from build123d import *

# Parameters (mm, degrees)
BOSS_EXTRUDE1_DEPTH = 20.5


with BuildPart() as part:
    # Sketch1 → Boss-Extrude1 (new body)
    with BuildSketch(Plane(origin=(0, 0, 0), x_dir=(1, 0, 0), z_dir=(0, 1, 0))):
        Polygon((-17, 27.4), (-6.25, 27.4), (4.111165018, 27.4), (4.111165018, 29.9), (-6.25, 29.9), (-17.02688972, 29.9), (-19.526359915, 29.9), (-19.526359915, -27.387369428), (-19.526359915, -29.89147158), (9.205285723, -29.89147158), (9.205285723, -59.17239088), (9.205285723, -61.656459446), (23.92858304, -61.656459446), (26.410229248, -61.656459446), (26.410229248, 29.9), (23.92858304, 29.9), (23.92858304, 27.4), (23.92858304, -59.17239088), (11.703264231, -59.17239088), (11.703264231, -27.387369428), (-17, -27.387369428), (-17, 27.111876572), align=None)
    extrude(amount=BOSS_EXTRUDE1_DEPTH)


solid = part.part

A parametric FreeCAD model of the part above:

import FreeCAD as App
import Part
import Sketcher
from FreeCAD import Vector

doc = App.newDocument("Part")
params = doc.addObject("Spreadsheet::Sheet", "Params")
for row, (alias, value) in enumerate([
    ("sketch1_height", "2.5 mm"),
    ("pad1_length", "20.5 mm"),
], start=1):
    params.set(f"A{row}", alias)
    params.set(f"B{row}", "=" + value)
    params.setAlias(f"B{row}", alias)

body = doc.addObject("PartDesign::Body", "Body")

# Sketch on XZ plane
sketch1 = doc.addObject("Sketcher::SketchObject", "Sketch")
body.addObject(sketch1)
sketch1.AttachmentSupport = (doc.XZ_Plane, [""])
sketch1.MapMode = "FlatFace"
sketch1.addGeometry(Part.LineSegment(Vector(-17, -27.4, 0), Vector(4.111165, -27.4, 0)), False)
sketch1.addGeometry(Part.LineSegment(Vector(4.111165, -27.4, 0), Vector(4.111165, -29.9, 0)), False)
sketch1.addGeometry(Part.LineSegment(Vector(4.111165, -29.9, 0), Vector(-19.52636, -29.9, 0)), False)
sketch1.addGeometry(Part.LineSegment(Vector(-19.52636, -29.9, 0), Vector(-19.52636, 29.891472, 0)), False)
sketch1.addGeometry(Part.LineSegment(Vector(-19.52636, 29.891472, 0), Vector(9.205286, 29.891472, 0)), False)
sketch1.addGeometry(Part.LineSegment(Vector(9.205286, 29.891472, 0), Vector(9.205286, 61.656459, 0)), False)
sketch1.addGeometry(Part.LineSegment(Vector(9.205286, 61.656459, 0), Vector(26.410229, 61.656459, 0)), False)
sketch1.addGeometry(Part.LineSegment(Vector(26.410229, 61.656459, 0), Vector(26.410229, -29.9, 0)), False)
sketch1.addGeometry(Part.LineSegment(Vector(26.410229, -29.9, 0), Vector(23.928583, -29.9, 0)), False)
sketch1.addGeometry(Part.LineSegment(Vector(23.928583, -29.9, 0), Vector(23.928583, 59.172391, 0)), False)
sketch1.addGeometry(Part.LineSegment(Vector(23.928583, 59.172391, 0), Vector(11.703264, 59.172391, 0)), False)
sketch1.addGeometry(Part.LineSegment(Vector(11.703264, 59.172391, 0), Vector(11.703264, 27.387369, 0)), False)
sketch1.addGeometry(Part.LineSegment(Vector(11.703264, 27.387369, 0), Vector(-17, 27.387369, 0)), False)
sketch1.addGeometry(Part.LineSegment(Vector(-17, 27.387369, 0), Vector(-17, -27.4, 0)), False)
sketch1.addConstraint(Sketcher.Constraint("Coincident", 0, 2, 1, 1))
sketch1.addConstraint(Sketcher.Constraint("Coincident", 1, 2, 2, 1))
sketch1.addConstraint(Sketcher.Constraint("Coincident", 2, 2, 3, 1))
sketch1.addConstraint(Sketcher.Constraint("Coincident", 3, 2, 4, 1))
sketch1.addConstraint(Sketcher.Constraint("Coincident", 4, 2, 5, 1))
sketch1.addConstraint(Sketcher.Constraint("Coincident", 5, 2, 6, 1))
sketch1.addConstraint(Sketcher.Constraint("Coincident", 6, 2, 7, 1))
sketch1.addConstraint(Sketcher.Constraint("Coincident", 7, 2, 8, 1))
sketch1.addConstraint(Sketcher.Constraint("Coincident", 8, 2, 9, 1))
sketch1.addConstraint(Sketcher.Constraint("Coincident", 9, 2, 10, 1))
sketch1.addConstraint(Sketcher.Constraint("Coincident", 10, 2, 11, 1))
sketch1.addConstraint(Sketcher.Constraint("Coincident", 11, 2, 12, 1))
sketch1.addConstraint(Sketcher.Constraint("Coincident", 12, 2, 13, 1))
sketch1.addConstraint(Sketcher.Constraint("Coincident", 13, 2, 0, 1))
sketch1.addConstraint(Sketcher.Constraint("Horizontal", 0))
sketch1.addConstraint(Sketcher.Constraint("Vertical", 1))
sketch1.addConstraint(Sketcher.Constraint("Horizontal", 2))
sketch1.addConstraint(Sketcher.Constraint("Vertical", 3))
sketch1.addConstraint(Sketcher.Constraint("Horizontal", 4))
sketch1.addConstraint(Sketcher.Constraint("Vertical", 5))
sketch1.addConstraint(Sketcher.Constraint("Horizontal", 6))
sketch1.addConstraint(Sketcher.Constraint("Vertical", 7))
sketch1.addConstraint(Sketcher.Constraint("Horizontal", 8))
sketch1.addConstraint(Sketcher.Constraint("Vertical", 9))
sketch1.addConstraint(Sketcher.Constraint("Horizontal", 10))
sketch1.addConstraint(Sketcher.Constraint("Vertical", 11))
sketch1.addConstraint(Sketcher.Constraint("Horizontal", 12))
sketch1.addConstraint(Sketcher.Constraint("Vertical", 13))
sketch1.addConstraint(Sketcher.Constraint("Horizontal", 2, 2, 7, 2))
sketch1.addConstraint(Sketcher.Constraint("DistanceY", 1, 2, 1, 1, 2.5))
sketch1.addConstraint(Sketcher.Constraint("DistanceX", 12, 2, -1, 1, 17.0))
sketch1.addConstraint(Sketcher.Constraint("DistanceY", 0, 2, -1, 1, 27.4))
sketch1.addConstraint(Sketcher.Constraint("DistanceX", 10, 2, 10, 1, 12.225319))
sketch1.addConstraint(Sketcher.Constraint("DistanceY", 3, 1, 3, 2, 59.791472))
sketch1.addConstraint(Sketcher.Constraint("DistanceY", 7, 2, 7, 1, 91.556459))
sketch1.addConstraint(Sketcher.Constraint("DistanceY", 9, 1, 9, 2, 89.072391))
sketch1.addConstraint(Sketcher.Constraint("DistanceY", 11, 2, 11, 1, 31.785021))
sketch1.addConstraint(Sketcher.Constraint("DistanceX", 0, 1, 0, 2, 21.111165))
sketch1.addConstraint(Sketcher.Constraint("DistanceX", 2, 2, 2, 1, 23.637525))
sketch1.addConstraint(Sketcher.Constraint("DistanceX", 4, 1, 4, 2, 28.731646))
sketch1.addConstraint(Sketcher.Constraint("DistanceX", 6, 1, 6, 2, 17.204944))
sketch1.addConstraint(Sketcher.Constraint("DistanceX", 8, 2, 8, 1, 2.481646))
sketch1.setExpression("Constraints[29]", "Params.sketch1_height")
pad1 = doc.addObject("PartDesign::Pad", "Pad")
body.addObject(pad1)
pad1.Profile = sketch1
pad1.setExpression("Length", "Params.pad1_length")
pad1.Reversed = True

doc.recompute()
